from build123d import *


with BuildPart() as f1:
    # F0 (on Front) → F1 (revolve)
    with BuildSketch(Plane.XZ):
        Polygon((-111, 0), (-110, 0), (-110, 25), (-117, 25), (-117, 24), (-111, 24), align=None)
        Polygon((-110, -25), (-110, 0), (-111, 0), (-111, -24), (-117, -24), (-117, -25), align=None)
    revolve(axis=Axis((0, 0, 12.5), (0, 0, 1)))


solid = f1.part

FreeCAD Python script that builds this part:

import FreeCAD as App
import Part
import Sketcher

doc = App.newDocument("Part")
body = doc.addObject("PartDesign::Body", "Body")

sketch1 = doc.addObject("Sketcher::SketchObject", "Sketch")
body.addObject(sketch1)
sketch1.AttachmentSupport = (doc.XZ_Plane, [""])
sketch1.MapMode = "FlatFace"
sketch1.addGeometry([
    Part.LineSegment(App.Vector(-110, 25, 0), App.Vector(-117, 25, 0)),
    Part.LineSegment(App.Vector(-117, 25, 0), App.Vector(-117, 24, 0)),
    Part.LineSegment(App.Vector(-117, 24, 0), App.Vector(-111, 24, 0)),
    Part.LineSegment(App.Vector(-111, 24, 0), App.Vector(-111, -24, 0)),
    Part.LineSegment(App.Vector(-111, -24, 0), App.Vector(-117, -24, 0)),
    Part.LineSegment(App.Vector(-117, -24, 0), App.Vector(-117, -25, 0)),
    Part.LineSegment(App.Vector(-117, -25, 0), App.Vector(-110, -25, 0)),
    Part.LineSegment(App.Vector(-110, -25, 0), App.Vector(-110, 25, 0)),
], False)
sketch1.addConstraint([
    Sketcher.Constraint("Coincident", 0, 2, 1, 1),
    Sketcher.Constraint("Coincident", 1, 2, 2, 1),
    Sketcher.Constraint("Coincident", 2, 2, 3, 1),
    Sketcher.Constraint("Coincident", 3, 2, 4, 1),
    Sketcher.Constraint("Coincident", 4, 2, 5, 1),
    Sketcher.Constraint("Coincident", 5, 2, 6, 1),
    Sketcher.Constraint("Coincident", 6, 2, 7, 1),
    Sketcher.Constraint("Coincident", 7, 2, 0, 1),
    Sketcher.Constraint("Horizontal", 0),
    Sketcher.Constraint("Vertical", 1),
    Sketcher.Constraint("Horizontal", 2),
    Sketcher.Constraint("Vertical", 3),
    Sketcher.Constraint("Horizontal", 4),
    Sketcher.Constraint("Vertical", 5),
    Sketcher.Constraint("Horizontal", 6),
    Sketcher.Constraint("Vertical", 7),
    Sketcher.Constraint("Symmetric", 1, 2, 4, 2, -1),
    Sketcher.Constraint("Equal", 1, 5),
    Sketcher.Constraint("DistanceX", 0, 2, 0, 1, 7.0),
    Sketcher.Constraint("DistanceX", 2, 1, 2, 2, 6.0),
    Sketcher.Constraint("DistanceY", 1, 2, 1, 1, 1.0),
    Sketcher.Constraint("DistanceY", 3, 2, 3, 1, 48.0),
    Sketcher.Constraint("DistanceX", 0, 2, -1, 1, 117.0),
])
revolution = doc.addObject("PartDesign::Revolution", "Revolution")
body.addObject(revolution)
revolution.Profile = sketch1
revolution.ReferenceAxis = (sketch1, ["V_Axis"])
revolution.Angle = 360

doc.recompute()
